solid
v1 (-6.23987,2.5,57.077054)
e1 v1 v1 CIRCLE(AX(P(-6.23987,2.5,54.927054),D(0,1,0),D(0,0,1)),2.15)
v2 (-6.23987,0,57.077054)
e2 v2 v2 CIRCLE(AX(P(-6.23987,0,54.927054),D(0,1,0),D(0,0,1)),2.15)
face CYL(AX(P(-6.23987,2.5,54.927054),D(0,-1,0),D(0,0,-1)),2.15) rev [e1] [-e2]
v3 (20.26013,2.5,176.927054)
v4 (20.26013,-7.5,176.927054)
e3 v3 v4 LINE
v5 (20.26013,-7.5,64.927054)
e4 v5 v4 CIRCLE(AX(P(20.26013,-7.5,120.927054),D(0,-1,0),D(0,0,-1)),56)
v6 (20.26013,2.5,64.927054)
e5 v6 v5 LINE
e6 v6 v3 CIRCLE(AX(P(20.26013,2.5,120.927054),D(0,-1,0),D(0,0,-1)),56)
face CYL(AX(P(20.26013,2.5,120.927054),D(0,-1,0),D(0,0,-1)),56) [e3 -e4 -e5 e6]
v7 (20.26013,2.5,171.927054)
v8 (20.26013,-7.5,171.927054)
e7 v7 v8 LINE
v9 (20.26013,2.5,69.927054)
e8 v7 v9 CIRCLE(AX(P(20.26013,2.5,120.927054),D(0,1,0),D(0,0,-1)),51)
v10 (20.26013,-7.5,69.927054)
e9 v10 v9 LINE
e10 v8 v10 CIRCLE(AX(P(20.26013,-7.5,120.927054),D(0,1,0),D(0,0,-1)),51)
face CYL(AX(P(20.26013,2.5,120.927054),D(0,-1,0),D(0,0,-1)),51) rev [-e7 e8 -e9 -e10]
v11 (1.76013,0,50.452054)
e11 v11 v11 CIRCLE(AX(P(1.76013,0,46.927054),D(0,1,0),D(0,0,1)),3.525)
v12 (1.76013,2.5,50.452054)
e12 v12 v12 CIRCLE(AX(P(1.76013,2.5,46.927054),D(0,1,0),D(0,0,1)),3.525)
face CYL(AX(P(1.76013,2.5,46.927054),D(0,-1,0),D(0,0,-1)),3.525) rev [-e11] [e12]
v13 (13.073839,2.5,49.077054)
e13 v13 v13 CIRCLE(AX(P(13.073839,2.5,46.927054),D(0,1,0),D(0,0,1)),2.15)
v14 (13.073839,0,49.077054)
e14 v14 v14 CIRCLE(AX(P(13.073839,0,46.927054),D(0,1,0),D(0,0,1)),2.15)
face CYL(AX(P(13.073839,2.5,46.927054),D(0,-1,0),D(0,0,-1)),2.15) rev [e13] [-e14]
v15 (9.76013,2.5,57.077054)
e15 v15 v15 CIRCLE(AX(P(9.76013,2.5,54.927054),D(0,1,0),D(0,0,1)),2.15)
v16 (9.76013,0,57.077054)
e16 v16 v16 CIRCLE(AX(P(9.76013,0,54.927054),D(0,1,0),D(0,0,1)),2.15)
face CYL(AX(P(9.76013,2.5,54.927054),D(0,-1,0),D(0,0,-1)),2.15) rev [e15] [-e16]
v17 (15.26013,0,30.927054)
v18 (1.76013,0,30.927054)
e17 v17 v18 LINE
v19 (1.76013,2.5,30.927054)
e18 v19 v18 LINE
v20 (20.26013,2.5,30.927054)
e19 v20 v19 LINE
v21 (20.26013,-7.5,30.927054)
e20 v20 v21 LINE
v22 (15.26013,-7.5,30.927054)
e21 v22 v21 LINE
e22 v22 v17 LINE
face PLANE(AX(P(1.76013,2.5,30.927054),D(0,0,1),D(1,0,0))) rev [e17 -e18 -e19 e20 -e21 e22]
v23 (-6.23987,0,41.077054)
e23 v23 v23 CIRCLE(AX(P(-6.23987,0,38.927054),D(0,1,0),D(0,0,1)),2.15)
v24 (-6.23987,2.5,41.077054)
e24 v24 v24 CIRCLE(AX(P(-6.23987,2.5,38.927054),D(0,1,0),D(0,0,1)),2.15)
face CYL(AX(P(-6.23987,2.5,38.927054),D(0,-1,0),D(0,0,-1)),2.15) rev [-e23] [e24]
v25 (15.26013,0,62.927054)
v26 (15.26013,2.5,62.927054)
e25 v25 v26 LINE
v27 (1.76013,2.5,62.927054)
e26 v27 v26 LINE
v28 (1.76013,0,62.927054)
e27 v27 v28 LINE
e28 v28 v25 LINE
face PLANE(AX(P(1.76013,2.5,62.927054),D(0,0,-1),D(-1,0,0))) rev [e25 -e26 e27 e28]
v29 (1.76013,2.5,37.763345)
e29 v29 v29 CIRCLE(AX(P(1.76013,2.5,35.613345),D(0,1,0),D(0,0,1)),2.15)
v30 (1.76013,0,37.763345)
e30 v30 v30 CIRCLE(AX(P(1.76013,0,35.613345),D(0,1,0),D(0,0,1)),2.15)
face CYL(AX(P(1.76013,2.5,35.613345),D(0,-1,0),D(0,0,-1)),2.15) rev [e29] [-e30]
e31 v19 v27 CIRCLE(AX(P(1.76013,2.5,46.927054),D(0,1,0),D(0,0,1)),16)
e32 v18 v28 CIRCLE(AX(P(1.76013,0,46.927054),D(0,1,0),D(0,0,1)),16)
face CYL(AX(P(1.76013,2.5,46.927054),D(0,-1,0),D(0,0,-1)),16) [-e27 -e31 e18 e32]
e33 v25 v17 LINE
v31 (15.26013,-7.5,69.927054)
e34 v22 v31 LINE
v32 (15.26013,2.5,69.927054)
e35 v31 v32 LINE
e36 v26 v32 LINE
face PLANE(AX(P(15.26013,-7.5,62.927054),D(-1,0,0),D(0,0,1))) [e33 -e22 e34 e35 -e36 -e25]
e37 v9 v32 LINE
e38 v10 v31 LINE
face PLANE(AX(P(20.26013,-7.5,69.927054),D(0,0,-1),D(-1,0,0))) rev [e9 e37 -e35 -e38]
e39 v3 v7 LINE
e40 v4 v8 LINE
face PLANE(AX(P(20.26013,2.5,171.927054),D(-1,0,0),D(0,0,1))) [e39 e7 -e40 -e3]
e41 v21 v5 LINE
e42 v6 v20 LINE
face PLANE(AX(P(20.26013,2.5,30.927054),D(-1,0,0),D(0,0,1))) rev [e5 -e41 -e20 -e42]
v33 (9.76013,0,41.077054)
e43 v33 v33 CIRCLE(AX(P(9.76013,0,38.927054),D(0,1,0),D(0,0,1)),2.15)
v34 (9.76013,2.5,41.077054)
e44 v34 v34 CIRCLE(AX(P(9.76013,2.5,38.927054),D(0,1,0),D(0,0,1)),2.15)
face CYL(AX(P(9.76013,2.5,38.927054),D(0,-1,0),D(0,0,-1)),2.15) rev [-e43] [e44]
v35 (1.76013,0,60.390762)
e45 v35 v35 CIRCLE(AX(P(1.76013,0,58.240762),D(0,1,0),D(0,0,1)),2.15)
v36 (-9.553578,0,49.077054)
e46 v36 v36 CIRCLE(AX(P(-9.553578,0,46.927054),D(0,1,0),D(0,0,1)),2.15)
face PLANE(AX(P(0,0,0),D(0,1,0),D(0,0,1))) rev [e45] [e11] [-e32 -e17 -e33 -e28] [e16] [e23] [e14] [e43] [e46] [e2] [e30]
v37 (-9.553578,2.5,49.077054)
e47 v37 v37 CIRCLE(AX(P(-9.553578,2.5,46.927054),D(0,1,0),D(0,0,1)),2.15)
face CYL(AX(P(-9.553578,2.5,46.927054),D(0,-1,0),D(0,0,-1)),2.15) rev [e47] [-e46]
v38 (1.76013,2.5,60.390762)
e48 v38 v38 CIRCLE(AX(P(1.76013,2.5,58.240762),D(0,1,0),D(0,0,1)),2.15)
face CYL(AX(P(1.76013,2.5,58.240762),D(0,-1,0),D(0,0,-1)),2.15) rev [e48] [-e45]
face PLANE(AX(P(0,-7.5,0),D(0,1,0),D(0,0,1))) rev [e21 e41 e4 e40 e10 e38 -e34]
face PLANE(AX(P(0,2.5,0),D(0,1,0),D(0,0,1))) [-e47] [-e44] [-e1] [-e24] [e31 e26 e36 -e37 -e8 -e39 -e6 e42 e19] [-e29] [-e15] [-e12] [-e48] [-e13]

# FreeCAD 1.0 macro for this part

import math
import FreeCAD as App
import Part
import Sketcher

V = App.Vector
Q = App.Units.Quantity

doc = App.newDocument("Part")
body = doc.addObject("PartDesign::Body", "Body")

# Sketch on XZ plane
sketch1 = body.newObject("Sketcher::SketchObject", "Sketch")
sketch1.AttachmentSupport = (doc.getObject("XZ_Plane"), [""])
sketch1.MapMode = "FlatFace"
sketch1.addGeometry([
    Part.LineSegment(V(2, 31, 0), V(2, 63, 0)),
    Part.LineSegment(V(2, 63, 0), V(20, 63, 0)),
    Part.LineSegment(V(20, 63, 0), V(20, 31, 0)),
    Part.LineSegment(V(20, 31, 0), V(2, 31, 0)),
], False)
sketch1.addConstraint([
    Sketcher.Constraint("Coincident", 0, 2, 1, 1),
    Sketcher.Constraint("Coincident", 1, 2, 2, 1),
    Sketcher.Constraint("Coincident", 2, 2, 3, 1),
    Sketcher.Constraint("Coincident", 3, 2, 0, 1),
    Sketcher.Constraint("Vertical", 0),
    Sketcher.Constraint("Horizontal", 1),
    Sketcher.Constraint("Vertical", 2),
    Sketcher.Constraint("Horizontal", 3),
    Sketcher.Constraint("DistanceY", 0, 1, 0, 2, Q("32 mm")),
    Sketcher.Constraint("DistanceX", 1, 1, 1, 2, Q("18.5 mm")),
    Sketcher.Constraint("DistanceX", -1, 1, 0, 2, Q("1.76013 mm")),
    Sketcher.Constraint("DistanceY", -1, 1, 0, 2, Q("62.927054 mm")),
])
pad1 = body.newObject("PartDesign::Pad", "Pad")
pad1.Profile = sketch1
pad1.Length = 2.5
pad1.Reversed = True

# Sketch on XZ plane
sketch2 = body.newObject("Sketcher::SketchObject", "Sketch001")
sketch2.AttachmentSupport = (doc.getObject("XZ_Plane"), [""])
sketch2.MapMode = "FlatFace"
sketch2.addGeometry(Part.Circle(V(2, 47, 0), V(0, 0, 1), 16), False)
sketch2.addConstraint([
    Sketcher.Constraint("Diameter", 0, Q("32 mm")),
    Sketcher.Constraint("DistanceX", -1, 1, 0, 3, Q("1.76013 mm")),
    Sketcher.Constraint("DistanceY", -1, 1, 0, 3, Q("46.927054 mm")),
])
pad2 = body.newObject("PartDesign::Pad", "Pad001")
pad2.Profile = sketch2
pad2.Length = 2.5
pad2.Reversed = True

# Sketch on XZ plane
sketch3 = body.newObject("Sketcher::SketchObject", "Sketch002")
sketch3.AttachmentSupport = (doc.getObject("XZ_Plane"), [""])
sketch3.MapMode = "FlatFace"
sketch3.addGeometry([
    Part.LineSegment(V(15.3, 62.9, 0), V(15.3, 69.9, 0)),
    Part.LineSegment(V(15.3, 69.9, 0), V(20.3, 69.9, 0)),
    Part.LineSegment(V(20.3, 69.9, 0), V(20.3, 62.9, 0)),
    Part.LineSegment(V(20.3, 62.9, 0), V(15.3, 62.9, 0)),
], False)
sketch3.addConstraint([
    Sketcher.Constraint("Coincident", 0, 2, 1, 1),
    Sketcher.Constraint("Coincident", 1, 2, 2, 1),
    Sketcher.Constraint("Coincident", 2, 2, 3, 1),
    Sketcher.Constraint("Coincident", 3, 2, 0, 1),
    Sketcher.Constraint("Vertical", 0),
    Sketcher.Constraint("Horizontal", 1),
    Sketcher.Constraint("Vertical", 2),
    Sketcher.Constraint("Horizontal", 3),
    Sketcher.Constraint("DistanceX", 1, 1, 1, 2, Q("5 mm")),
    Sketcher.Constraint("DistanceY", 0, 1, 0, 2, Q("7 mm")),
    Sketcher.Constraint("DistanceX", -1, 1, 0, 2, Q("15.26013 mm")),
    Sketcher.Constraint("DistanceY", -1, 1, 0, 2, Q("69.927054 mm")),
])
pad3 = body.newObject("PartDesign::Pad", "Pad002")
pad3.Profile = sketch3
pad3.Type = "TwoLengths"
pad3.Length = 2.5
pad3.Length2 = 7.5
pad3.Reversed = True

# Sketch on XZ plane
sketch4 = body.newObject("Sketcher::SketchObject", "Sketch003")
sketch4.AttachmentSupport = (doc.getObject("XZ_Plane"), [""])
sketch4.MapMode = "FlatFace"
sketch4.addGeometry([
    Part.Circle(V(1.8, 35.6, 0), V(0, 0, 1), 2.1),  # 0
    Part.Circle(V(9.8, 38.9, 0), V(0, 0, 1), 2.1),  # 1
    Part.Circle(V(13.1, 46.9, 0), V(0, 0, 1), 2.1),  # 2
    Part.Circle(V(9.8, 54.9, 0), V(0, 0, 1), 2.1),  # 3
    Part.Circle(V(1.8, 58.2, 0), V(0, 0, 1), 2.1),  # 4
    Part.Circle(V(-6.2, 54.9, 0), V(0, 0, 1), 2.1),  # 5
    Part.Circle(V(-9.6, 46.9, 0), V(0, 0, 1), 2.1),  # 6
    Part.Circle(V(-6.2, 38.9, 0), V(0, 0, 1), 2.1),  # 7
], False)
sketch4.addConstraint([
    Sketcher.Constraint("Equal", 0, 1),
    Sketcher.Constraint("Equal", 1, 2),
    Sketcher.Constraint("Equal", 2, 3),
    Sketcher.Constraint("Equal", 3, 4),
    Sketcher.Constraint("Equal", 4, 5),
    Sketcher.Constraint("Equal", 5, 6),
    Sketcher.Constraint("Equal", 6, 7),
    Sketcher.Constraint("Horizontal", 3, 3, 5, 3),
    Sketcher.Constraint("Horizontal", 2, 3, 6, 3),
    Sketcher.Constraint("Horizontal", 1, 3, 7, 3),
    Sketcher.Constraint("Vertical", 1, 3, 3, 3),
    Sketcher.Constraint("Vertical", 0, 3, 4, 3),
    Sketcher.Constraint("Vertical", 5, 3, 7, 3),
    Sketcher.Constraint("Diameter", 0, Q("4.3 mm")),
    Sketcher.Constraint("DistanceX", 0, 3, 1, 3, Q("8 mm")),
    Sketcher.Constraint("DistanceY", 1, 3, 2, 3, Q("8 mm")),
    Sketcher.Constraint("DistanceY", 2, 3, 3, 3, Q("8 mm")),
    Sketcher.Constraint("DistanceX", 5, 3, 4, 3, Q("8 mm")),
    Sketcher.Constraint("DistanceX", -1, 1, 0, 3, Q("1.76013 mm")),
    Sketcher.Constraint("DistanceX", -1, 1, 2, 3, Q("13.073839 mm")),
    Sketcher.Constraint("DistanceX", 6, 3, -1, 1, Q("9.553578 mm")),
    Sketcher.Constraint("DistanceY", 0, 3, 1, 3, Q("3.313708 mm")),
    Sketcher.Constraint("DistanceY", 3, 3, 4, 3, Q("3.313708 mm")),
    Sketcher.Constraint("DistanceY", -1, 1, 0, 3, Q("35.613345 mm")),
])
pocket1 = body.newObject("PartDesign::Pocket", "Pocket")
pocket1.Profile = sketch4
pocket1.Length = 2.5

# Sketch on XZ plane
sketch5 = body.newObject("Sketcher::SketchObject", "Sketch004")
sketch5.AttachmentSupport = (doc.getObject("XZ_Plane"), [""])
sketch5.MapMode = "FlatFace"
sketch5.addGeometry(Part.Circle(V(1.8, 46.9, 0), V(0, 0, 1), 3.5), False)
sketch5.addConstraint([
    Sketcher.Constraint("Diameter", 0, Q("7.05 mm")),
    Sketcher.Constraint("DistanceX", -1, 1, 0, 3, Q("1.76013 mm")),
    Sketcher.Constraint("DistanceY", -1, 1, 0, 3, Q("46.927054 mm")),
])
pocket2 = body.newObject("PartDesign::Pocket", "Pocket001")
pocket2.Profile = sketch5
pocket2.Length = 2.5

# Sketch on XZ plane
sketch6 = body.newObject("Sketcher::SketchObject", "Sketch005")
sketch6.AttachmentSupport = (doc.getObject("XZ_Plane"), [""])
sketch6.MapMode = "FlatFace"
sketch6.AttachmentOffset = App.Placement(V(0, 0, 7.5), App.Rotation())
sketch6.addGeometry([
    Part.LineSegment(V(20, 177, 0), V(20, 172, 0)),
    Part.ArcOfCircle(Part.Circle(V(20, 121, 0), V(0, 0, 1), 51), math.radians(-90), math.radians(90)),
    Part.LineSegment(V(20, 70, 0), V(20, 65, 0)),
    Part.ArcOfCircle(Part.Circle(V(20, 121, 0), V(0, 0, 1), 56), math.radians(-90), math.radians(90)),
], False)
sketch6.addConstraint([
    Sketcher.Constraint("Coincident", 0, 2, 1, 2),
    Sketcher.Constraint("Coincident", 1, 1, 2, 1),
    Sketcher.Constraint("Coincident", 2, 2, 3, 1),
    Sketcher.Constraint("Coincident", 3, 2, 0, 1),
    Sketcher.Constraint("Vertical", 0),
    Sketcher.Constraint("Vertical", 2),
    Sketcher.Constraint("Coincident", 3, 3, 1, 3),
    Sketcher.Constraint("Vertical", 3, 3, 0, 2),
    Sketcher.Constraint("Vertical", 0, 2, 1, 1),
    Sketcher.Constraint("Radius", 1, Q("51 mm")),
    Sketcher.Constraint("Radius", 3, Q("56 mm")),
    Sketcher.Constraint("DistanceX", -1, 1, 1, 3, Q("20.26013 mm")),
    Sketcher.Constraint("DistanceY", -1, 1, 1, 3, Q("120.927054 mm")),
])
pad4 = body.newObject("PartDesign::Pad", "Pad003")
pad4.Profile = sketch6
pad4.Length = 10
pad4.Reversed = True

# Sketch on XZ plane
sketch7 = body.newObject("Sketcher::SketchObject", "Sketch006")
sketch7.AttachmentSupport = (doc.getObject("XZ_Plane"), [""])
sketch7.MapMode = "FlatFace"
sketch7.addGeometry([
    Part.LineSegment(V(20.3, 30.9, 0), V(20.3, 62.9, 0)),
    Part.LineSegment(V(20.3, 62.9, 0), V(15.3, 62.9, 0)),
    Part.LineSegment(V(15.3, 62.9, 0), V(15.3, 30.9, 0)),
    Part.LineSegment(V(15.3, 30.9, 0), V(20.3, 30.9, 0)),
], False)
sketch7.addConstraint([
    Sketcher.Constraint("Coincident", 0, 2, 1, 1),
    Sketcher.Constraint("Coincident", 1, 2, 2, 1),
    Sketcher.Constraint("Coincident", 2, 2, 3, 1),
    Sketcher.Constraint("Coincident", 3, 2, 0, 1),
    Sketcher.Constraint("Vertical", 0),
    Sketcher.Constraint("Horizontal", 1),
    Sketcher.Constraint("Vertical", 2),
    Sketcher.Constraint("Horizontal", 3),
    Sketcher.Constraint("DistanceX", 1, 2, 1, 1, Q("5 mm")),
    Sketcher.Constraint("DistanceY", 0, 1, 0, 2, Q("32 mm")),
    Sketcher.Constraint("DistanceX", -1, 1, 0, 2, Q("20.26013 mm")),
    Sketcher.Constraint("DistanceY", -1, 1, 0, 2, Q("62.927054 mm")),
])
pad5 = body.newObject("PartDesign::Pad", "Pad004")
pad5.Profile = sketch7
pad5.Length = 7.5

doc.recompute()
